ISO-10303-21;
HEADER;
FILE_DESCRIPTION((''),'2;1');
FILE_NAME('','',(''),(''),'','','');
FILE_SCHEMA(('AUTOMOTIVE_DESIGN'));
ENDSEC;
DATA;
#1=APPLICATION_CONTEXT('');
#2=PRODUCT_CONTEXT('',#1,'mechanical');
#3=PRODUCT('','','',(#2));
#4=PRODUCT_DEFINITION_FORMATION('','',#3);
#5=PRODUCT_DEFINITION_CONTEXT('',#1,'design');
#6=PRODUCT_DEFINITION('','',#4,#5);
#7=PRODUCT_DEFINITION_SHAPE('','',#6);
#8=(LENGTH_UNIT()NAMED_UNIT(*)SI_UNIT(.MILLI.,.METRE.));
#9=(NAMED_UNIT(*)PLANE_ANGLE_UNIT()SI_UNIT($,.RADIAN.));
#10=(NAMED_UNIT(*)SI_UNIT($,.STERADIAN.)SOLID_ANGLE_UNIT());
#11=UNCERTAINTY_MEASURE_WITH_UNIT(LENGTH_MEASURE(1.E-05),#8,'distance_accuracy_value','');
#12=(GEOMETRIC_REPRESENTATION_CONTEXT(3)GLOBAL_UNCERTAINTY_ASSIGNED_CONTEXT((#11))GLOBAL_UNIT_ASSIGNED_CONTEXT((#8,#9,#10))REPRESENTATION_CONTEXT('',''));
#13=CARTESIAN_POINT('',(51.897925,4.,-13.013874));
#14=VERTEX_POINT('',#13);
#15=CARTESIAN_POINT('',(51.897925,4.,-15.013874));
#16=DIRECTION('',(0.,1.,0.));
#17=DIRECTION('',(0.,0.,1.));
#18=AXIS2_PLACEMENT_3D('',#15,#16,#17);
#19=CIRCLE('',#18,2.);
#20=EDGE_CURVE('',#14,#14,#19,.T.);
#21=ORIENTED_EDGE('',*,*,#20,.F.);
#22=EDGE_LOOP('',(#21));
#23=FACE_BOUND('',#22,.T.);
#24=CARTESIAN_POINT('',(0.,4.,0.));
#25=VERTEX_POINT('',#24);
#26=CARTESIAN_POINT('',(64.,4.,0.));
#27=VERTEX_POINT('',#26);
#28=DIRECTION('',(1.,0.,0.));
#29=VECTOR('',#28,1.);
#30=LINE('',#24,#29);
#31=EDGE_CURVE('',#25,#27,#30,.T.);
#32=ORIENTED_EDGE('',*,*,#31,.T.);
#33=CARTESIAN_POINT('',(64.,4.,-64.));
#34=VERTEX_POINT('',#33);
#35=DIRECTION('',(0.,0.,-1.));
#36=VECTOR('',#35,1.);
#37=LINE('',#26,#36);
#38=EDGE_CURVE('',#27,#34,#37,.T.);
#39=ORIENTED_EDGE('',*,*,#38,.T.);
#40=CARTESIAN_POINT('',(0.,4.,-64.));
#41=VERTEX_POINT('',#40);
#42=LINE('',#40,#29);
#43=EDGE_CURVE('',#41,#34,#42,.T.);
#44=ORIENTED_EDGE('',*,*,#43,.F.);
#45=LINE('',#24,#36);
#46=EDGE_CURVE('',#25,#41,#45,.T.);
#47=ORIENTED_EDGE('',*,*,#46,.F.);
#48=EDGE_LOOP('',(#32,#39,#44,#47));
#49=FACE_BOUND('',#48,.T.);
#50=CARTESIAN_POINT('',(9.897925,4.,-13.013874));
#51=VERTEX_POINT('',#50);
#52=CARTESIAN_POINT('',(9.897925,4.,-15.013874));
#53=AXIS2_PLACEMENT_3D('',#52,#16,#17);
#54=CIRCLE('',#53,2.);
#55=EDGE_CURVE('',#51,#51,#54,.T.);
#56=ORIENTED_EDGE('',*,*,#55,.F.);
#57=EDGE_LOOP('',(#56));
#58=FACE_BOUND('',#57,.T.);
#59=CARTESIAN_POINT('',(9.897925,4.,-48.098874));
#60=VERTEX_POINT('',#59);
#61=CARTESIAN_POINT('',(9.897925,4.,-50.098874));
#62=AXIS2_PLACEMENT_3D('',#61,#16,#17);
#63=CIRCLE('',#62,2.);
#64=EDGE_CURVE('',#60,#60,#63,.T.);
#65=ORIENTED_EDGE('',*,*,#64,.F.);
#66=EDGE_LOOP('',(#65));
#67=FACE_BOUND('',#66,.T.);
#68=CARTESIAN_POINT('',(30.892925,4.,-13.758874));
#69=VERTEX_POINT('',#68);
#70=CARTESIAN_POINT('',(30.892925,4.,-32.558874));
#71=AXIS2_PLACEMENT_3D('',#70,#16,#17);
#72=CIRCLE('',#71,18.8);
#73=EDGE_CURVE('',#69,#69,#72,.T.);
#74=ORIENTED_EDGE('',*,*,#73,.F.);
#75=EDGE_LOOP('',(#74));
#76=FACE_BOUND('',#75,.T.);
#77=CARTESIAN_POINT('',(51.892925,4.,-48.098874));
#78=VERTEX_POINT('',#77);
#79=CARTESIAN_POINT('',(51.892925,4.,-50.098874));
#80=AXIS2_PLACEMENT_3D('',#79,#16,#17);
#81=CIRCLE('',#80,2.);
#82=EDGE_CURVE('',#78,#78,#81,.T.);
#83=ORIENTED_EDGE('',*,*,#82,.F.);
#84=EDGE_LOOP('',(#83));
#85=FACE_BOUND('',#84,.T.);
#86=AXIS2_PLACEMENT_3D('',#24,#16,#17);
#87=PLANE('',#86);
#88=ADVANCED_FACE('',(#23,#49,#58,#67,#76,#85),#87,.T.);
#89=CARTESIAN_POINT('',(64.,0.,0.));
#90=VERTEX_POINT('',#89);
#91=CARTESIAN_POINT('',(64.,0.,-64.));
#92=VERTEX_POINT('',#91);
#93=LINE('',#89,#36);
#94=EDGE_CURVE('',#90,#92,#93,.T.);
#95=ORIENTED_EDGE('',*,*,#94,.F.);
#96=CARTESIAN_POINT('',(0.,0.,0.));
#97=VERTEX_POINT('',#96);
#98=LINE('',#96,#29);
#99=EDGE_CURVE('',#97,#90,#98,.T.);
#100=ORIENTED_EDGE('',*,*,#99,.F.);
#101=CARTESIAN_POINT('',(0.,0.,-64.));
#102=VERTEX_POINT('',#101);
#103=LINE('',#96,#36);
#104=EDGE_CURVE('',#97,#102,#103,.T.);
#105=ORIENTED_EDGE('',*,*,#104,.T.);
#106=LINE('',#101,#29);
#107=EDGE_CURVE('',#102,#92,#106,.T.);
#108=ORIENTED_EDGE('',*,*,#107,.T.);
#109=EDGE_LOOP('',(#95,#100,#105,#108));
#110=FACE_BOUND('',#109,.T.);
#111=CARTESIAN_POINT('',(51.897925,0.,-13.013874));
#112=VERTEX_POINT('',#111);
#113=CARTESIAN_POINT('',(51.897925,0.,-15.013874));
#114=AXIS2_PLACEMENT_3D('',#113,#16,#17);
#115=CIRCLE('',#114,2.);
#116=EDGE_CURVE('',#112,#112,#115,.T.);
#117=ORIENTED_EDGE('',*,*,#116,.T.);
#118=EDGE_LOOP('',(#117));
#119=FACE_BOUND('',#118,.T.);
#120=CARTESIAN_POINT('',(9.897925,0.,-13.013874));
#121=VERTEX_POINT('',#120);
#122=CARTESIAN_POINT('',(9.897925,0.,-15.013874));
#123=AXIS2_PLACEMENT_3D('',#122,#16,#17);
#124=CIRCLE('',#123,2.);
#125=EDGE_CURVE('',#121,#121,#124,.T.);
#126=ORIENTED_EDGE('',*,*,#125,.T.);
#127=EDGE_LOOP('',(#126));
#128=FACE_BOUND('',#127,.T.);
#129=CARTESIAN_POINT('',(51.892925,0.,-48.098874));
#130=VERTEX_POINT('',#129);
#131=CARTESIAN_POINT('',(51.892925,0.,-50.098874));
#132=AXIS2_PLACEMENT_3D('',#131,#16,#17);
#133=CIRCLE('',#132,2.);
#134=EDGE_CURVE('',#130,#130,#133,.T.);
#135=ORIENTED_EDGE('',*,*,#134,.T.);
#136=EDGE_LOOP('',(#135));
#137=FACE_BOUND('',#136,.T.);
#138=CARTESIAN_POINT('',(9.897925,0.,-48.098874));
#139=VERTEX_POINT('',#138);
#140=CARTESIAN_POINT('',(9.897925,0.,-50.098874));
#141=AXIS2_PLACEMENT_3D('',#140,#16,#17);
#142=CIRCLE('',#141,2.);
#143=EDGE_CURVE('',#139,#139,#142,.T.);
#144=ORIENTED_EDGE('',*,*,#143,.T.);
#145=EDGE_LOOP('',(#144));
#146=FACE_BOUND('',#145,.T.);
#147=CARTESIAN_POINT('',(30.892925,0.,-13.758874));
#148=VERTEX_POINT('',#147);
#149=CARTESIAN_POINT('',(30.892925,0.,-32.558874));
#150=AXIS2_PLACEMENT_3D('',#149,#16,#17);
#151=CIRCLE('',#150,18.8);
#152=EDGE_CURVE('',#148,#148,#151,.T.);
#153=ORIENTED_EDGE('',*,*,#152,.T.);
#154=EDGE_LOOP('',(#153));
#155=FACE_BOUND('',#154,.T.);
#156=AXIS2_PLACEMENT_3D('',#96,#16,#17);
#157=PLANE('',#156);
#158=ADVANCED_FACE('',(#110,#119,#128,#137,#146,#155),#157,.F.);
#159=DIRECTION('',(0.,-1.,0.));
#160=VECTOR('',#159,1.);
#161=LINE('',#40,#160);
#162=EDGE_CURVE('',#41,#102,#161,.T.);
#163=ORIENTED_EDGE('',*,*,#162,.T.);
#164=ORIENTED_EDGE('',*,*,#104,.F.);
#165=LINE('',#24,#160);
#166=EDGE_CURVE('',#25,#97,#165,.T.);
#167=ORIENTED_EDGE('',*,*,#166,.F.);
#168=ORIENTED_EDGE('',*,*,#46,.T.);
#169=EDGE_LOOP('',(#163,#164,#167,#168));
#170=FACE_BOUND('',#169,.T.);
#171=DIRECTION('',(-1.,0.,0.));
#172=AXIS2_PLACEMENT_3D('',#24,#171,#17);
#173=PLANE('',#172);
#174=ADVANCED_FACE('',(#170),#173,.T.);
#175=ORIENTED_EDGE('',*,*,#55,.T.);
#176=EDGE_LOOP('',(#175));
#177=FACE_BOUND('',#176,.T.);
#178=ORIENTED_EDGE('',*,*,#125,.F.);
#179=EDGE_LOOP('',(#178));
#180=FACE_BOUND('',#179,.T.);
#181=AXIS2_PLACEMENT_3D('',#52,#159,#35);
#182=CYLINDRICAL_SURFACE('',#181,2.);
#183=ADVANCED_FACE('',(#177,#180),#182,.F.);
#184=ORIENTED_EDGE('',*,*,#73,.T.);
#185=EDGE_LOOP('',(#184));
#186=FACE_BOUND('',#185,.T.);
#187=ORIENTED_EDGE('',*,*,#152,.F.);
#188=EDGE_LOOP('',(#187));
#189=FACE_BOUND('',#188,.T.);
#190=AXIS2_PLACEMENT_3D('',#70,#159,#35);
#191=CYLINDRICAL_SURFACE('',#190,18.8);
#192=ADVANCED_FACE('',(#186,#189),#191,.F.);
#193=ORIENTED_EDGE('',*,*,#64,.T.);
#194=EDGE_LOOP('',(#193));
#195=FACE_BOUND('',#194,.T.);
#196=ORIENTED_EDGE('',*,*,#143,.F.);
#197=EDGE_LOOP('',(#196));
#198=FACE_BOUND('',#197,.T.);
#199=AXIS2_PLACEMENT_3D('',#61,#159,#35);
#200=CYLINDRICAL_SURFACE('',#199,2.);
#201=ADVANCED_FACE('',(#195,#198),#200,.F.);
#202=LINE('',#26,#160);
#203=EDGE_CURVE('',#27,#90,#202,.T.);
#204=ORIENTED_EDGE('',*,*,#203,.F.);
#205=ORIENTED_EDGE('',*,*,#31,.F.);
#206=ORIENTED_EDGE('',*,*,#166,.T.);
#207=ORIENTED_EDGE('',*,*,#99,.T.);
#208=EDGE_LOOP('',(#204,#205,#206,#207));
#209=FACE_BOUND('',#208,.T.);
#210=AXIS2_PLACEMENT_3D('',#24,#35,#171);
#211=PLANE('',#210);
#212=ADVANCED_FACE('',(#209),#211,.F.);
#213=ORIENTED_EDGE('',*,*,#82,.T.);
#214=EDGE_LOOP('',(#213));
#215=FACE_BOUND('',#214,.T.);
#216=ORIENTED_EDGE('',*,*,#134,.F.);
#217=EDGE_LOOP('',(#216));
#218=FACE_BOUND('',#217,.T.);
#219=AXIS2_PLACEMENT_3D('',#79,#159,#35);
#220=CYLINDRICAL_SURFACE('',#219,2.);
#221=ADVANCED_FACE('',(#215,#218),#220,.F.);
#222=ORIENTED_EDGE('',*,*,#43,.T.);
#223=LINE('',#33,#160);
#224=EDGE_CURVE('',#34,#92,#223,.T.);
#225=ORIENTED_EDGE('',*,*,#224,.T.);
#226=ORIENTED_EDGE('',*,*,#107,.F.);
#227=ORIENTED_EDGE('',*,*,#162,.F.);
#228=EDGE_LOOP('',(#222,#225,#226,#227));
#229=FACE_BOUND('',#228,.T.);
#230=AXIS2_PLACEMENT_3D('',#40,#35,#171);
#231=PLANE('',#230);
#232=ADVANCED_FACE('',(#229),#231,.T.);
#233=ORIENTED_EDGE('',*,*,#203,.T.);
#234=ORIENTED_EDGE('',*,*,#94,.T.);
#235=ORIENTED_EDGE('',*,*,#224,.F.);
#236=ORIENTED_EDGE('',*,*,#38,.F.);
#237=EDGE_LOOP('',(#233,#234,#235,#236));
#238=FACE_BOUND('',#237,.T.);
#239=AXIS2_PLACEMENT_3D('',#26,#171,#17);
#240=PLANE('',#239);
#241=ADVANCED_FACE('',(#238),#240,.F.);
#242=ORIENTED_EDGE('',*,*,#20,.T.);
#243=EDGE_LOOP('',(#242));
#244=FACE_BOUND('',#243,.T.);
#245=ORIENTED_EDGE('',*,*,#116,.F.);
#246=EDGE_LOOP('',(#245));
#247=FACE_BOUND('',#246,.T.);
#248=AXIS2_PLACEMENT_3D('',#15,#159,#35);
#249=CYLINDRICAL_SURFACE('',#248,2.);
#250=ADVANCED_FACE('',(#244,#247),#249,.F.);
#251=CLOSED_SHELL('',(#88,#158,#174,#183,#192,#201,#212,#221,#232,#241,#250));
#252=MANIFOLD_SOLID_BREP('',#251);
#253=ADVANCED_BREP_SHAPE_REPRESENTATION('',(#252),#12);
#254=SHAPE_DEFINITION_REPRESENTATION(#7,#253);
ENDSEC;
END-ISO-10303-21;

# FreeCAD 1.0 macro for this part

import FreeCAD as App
import Part
import Sketcher

V = App.Vector

doc = App.newDocument("Part")
params = doc.addObject("Spreadsheet::Sheet", "Params")
for row, (alias, value) in enumerate([
    ("sketch1_diameter", "4 mm"),
    ("sketch1_diameter2", "37.6 mm"),
    ("sketch1_width", "64 mm"),
    ("pad1_length", "4 mm"),
], start=1):
    params.set(f"A{row}", alias)
    params.set(f"B{row}", "=" + value)
    params.setAlias(f"B{row}", alias)

body = doc.addObject("PartDesign::Body", "Body")

# Sketch on XZ plane
sketch1 = doc.addObject("Sketcher::SketchObject", "Sketch")
body.addObject(sketch1)
sketch1.AttachmentSupport = (doc.XZ_Plane, [""])
sketch1.MapMode = "FlatFace"
sketch1.addGeometry([
    Part.LineSegment(V(0, -64, 0), V(0, 0, 0)),  # 0
    Part.LineSegment(V(0, 0, 0), V(64, 0, 0)),  # 1
    Part.LineSegment(V(64, 0, 0), V(64, -64, 0)),  # 2
    Part.LineSegment(V(64, -64, 0), V(0, -64, 0)),  # 3
    Part.Circle(V(9.9, -15, 0), V(0, 0, 1), 2),  # 4
    Part.Circle(V(51.9, -15, 0), V(0, 0, 1), 2),  # 5
    Part.Circle(V(30.9, -32.6, 0), V(0, 0, 1), 18.8),  # 6
    Part.Circle(V(9.9, -50.1, 0), V(0, 0, 1), 2),  # 7
    Part.Circle(V(51.9, -50.1, 0), V(0, 0, 1), 2),  # 8
], False)
sketch1.addConstraint([
    Sketcher.Constraint("Coincident", 0, 2, 1, 1),
    Sketcher.Constraint("Coincident", 1, 2, 2, 1),
    Sketcher.Constraint("Coincident", 2, 2, 3, 1),
    Sketcher.Constraint("Coincident", 3, 2, 0, 1),
    Sketcher.Constraint("Vertical", 0),
    Sketcher.Constraint("Horizontal", 1),
    Sketcher.Constraint("Vertical", 2),
    Sketcher.Constraint("Horizontal", 3),
    Sketcher.Constraint("Coincident", 0, 2, -1, 1),
    Sketcher.Constraint("Equal", 4, 5),
    Sketcher.Constraint("Equal", 5, 7),
    Sketcher.Constraint("Equal", 7, 8),
    Sketcher.Constraint("Horizontal", 4, 3, 5, 3),
    Sketcher.Constraint("Horizontal", 7, 3, 8, 3),
    Sketcher.Constraint("Vertical", 4, 3, 7, 3),
    Sketcher.Constraint("Equal", 3, 0),
    Sketcher.Constraint("Diameter", 4, 4.0),
    Sketcher.Constraint("Diameter", 6, 37.6),
    Sketcher.Constraint("DistanceX", 1, 1, 1, 2, 64.0),
    Sketcher.Constraint("DistanceX", 4, 3, 5, 3, 42.0),
    Sketcher.Constraint("DistanceX", 6, 3, 8, 3, 21.0),
    Sketcher.Constraint("DistanceY", 7, 3, 6, 3, 17.54),
    Sketcher.Constraint("DistanceX", 4, 3, 6, 3, 20.995),
    Sketcher.Constraint("DistanceY", 6, 3, 4, 3, 17.545),
    Sketcher.Constraint("DistanceX", -1, 1, 4, 3, 9.897925),
    Sketcher.Constraint("DistanceY", 4, 3, -1, 1, 15.013874),
])
sketch1.setExpression("Constraints[16]", "Params.sketch1_diameter")
sketch1.setExpression("Constraints[17]", "Params.sketch1_diameter2")
sketch1.setExpression("Constraints[18]", "Params.sketch1_width")
pad1 = doc.addObject("PartDesign::Pad", "Pad")
body.addObject(pad1)
pad1.Profile = sketch1
pad1.setExpression("Length", "Params.pad1_length")
pad1.Reversed = True

doc.recompute()
